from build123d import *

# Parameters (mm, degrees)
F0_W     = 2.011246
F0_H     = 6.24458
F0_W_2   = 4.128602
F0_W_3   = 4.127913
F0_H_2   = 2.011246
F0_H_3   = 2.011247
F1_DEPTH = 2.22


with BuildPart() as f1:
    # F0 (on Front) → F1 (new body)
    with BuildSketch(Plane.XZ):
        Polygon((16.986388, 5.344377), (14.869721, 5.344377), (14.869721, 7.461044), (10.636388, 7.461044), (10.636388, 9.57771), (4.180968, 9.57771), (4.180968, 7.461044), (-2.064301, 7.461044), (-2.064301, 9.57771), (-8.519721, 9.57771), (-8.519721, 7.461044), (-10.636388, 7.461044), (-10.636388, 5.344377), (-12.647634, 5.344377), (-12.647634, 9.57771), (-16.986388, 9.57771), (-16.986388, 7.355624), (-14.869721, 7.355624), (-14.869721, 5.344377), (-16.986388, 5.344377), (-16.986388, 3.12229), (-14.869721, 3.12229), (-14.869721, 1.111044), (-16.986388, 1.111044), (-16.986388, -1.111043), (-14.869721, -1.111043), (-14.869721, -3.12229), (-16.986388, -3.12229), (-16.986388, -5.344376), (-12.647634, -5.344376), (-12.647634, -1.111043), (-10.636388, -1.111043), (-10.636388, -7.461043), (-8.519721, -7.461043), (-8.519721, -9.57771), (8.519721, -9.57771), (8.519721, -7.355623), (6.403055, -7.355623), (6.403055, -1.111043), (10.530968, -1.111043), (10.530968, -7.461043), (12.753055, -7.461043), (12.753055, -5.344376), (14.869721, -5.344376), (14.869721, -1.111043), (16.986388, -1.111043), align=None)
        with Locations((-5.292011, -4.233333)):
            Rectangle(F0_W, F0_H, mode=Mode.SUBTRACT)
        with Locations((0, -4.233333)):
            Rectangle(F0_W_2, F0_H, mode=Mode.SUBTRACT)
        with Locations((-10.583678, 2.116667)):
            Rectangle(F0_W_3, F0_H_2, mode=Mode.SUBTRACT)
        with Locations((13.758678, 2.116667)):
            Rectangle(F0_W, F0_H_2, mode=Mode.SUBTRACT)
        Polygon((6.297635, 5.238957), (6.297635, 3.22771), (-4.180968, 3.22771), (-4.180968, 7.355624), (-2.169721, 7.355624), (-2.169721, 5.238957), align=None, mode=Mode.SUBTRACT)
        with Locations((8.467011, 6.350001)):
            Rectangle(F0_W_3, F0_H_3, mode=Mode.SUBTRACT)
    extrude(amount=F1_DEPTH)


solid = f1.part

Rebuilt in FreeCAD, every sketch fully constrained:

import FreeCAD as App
import Part
import Sketcher
from FreeCAD import Vector
Q = App.Units.Quantity

doc = App.newDocument("Part")
body = doc.addObject("PartDesign::Body", "Body")

# Sketch on XZ plane
sketch1 = body.newObject("Sketcher::SketchObject", "Sketch")
sketch1.AttachmentSupport = (doc.getObject("XZ_Plane"), [""])
sketch1.MapMode = "FlatFace"
sketch1.addGeometry([
    Part.LineSegment(Vector(17, 5.3, 0), Vector(14.9, 5.3, 0)),  # 0
    Part.LineSegment(Vector(14.9, 5.3, 0), Vector(14.9, 7.5, 0)),  # 1
    Part.LineSegment(Vector(14.9, 7.5, 0), Vector(10.6, 7.5, 0)),  # 2
    Part.LineSegment(Vector(10.6, 7.5, 0), Vector(10.6, 9.6, 0)),  # 3
    Part.LineSegment(Vector(10.6, 9.6, 0), Vector(4.2, 9.6, 0)),  # 4
    Part.LineSegment(Vector(4.2, 9.6, 0), Vector(4.2, 7.5, 0)),  # 5
    Part.LineSegment(Vector(4.2, 7.5, 0), Vector(-2.1, 7.5, 0)),  # 6
    Part.LineSegment(Vector(-2.1, 7.5, 0), Vector(-2.1, 9.6, 0)),  # 7
    Part.LineSegment(Vector(-2.1, 9.6, 0), Vector(-8.5, 9.6, 0)),  # 8
    Part.LineSegment(Vector(-8.5, 9.6, 0), Vector(-8.5, 7.5, 0)),  # 9
    Part.LineSegment(Vector(-8.5, 7.5, 0), Vector(-10.6, 7.5, 0)),  # 10
    Part.LineSegment(Vector(-10.6, 7.5, 0), Vector(-10.6, 5.3, 0)),  # 11
    Part.LineSegment(Vector(-10.6, 5.3, 0), Vector(-12.6, 5.3, 0)),  # 12
    Part.LineSegment(Vector(-12.6, 5.3, 0), Vector(-12.6, 9.6, 0)),  # 13
    Part.LineSegment(Vector(-12.6, 9.6, 0), Vector(-17, 9.6, 0)),  # 14
    Part.LineSegment(Vector(-17, 9.6, 0), Vector(-17, 7.4, 0)),  # 15
    Part.LineSegment(Vector(-17, 7.4, 0), Vector(-14.9, 7.4, 0)),  # 16
    Part.LineSegment(Vector(-14.9, 7.4, 0), Vector(-14.9, 5.3, 0)),  # 17
    Part.LineSegment(Vector(-14.9, 5.3, 0), Vector(-17, 5.3, 0)),  # 18
    Part.LineSegment(Vector(-17, 5.3, 0), Vector(-17, 3.1, 0)),  # 19
    Part.LineSegment(Vector(-17, 3.1, 0), Vector(-14.9, 3.1, 0)),  # 20
    Part.LineSegment(Vector(-14.9, 3.1, 0), Vector(-14.9, 1.1, 0)),  # 21
    Part.LineSegment(Vector(-14.9, 1.1, 0), Vector(-17, 1.1, 0)),  # 22
    Part.LineSegment(Vector(-17, 1.1, 0), Vector(-17, -1.1, 0)),  # 23
    Part.LineSegment(Vector(-17, -1.1, 0), Vector(-14.9, -1.1, 0)),  # 24
    Part.LineSegment(Vector(-14.9, -1.1, 0), Vector(-14.9, -3.1, 0)),  # 25
    Part.LineSegment(Vector(-14.9, -3.1, 0), Vector(-17, -3.1, 0)),  # 26
    Part.LineSegment(Vector(-17, -3.1, 0), Vector(-17, -5.3, 0)),  # 27
    Part.LineSegment(Vector(-17, -5.3, 0), Vector(-12.6, -5.3, 0)),  # 28
    Part.LineSegment(Vector(-12.6, -5.3, 0), Vector(-12.6, -1.1, 0)),  # 29
    Part.LineSegment(Vector(-12.6, -1.1, 0), Vector(-10.6, -1.1, 0)),  # 30
    Part.LineSegment(Vector(-10.6, -1.1, 0), Vector(-10.6, -7.5, 0)),  # 31
    Part.LineSegment(Vector(-10.6, -7.5, 0), Vector(-8.5, -7.5, 0)),  # 32
    Part.LineSegment(Vector(-8.5, -7.5, 0), Vector(-8.5, -9.6, 0)),  # 33
    Part.LineSegment(Vector(-8.5, -9.6, 0), Vector(8.5, -9.6, 0)),  # 34
    Part.LineSegment(Vector(8.5, -9.6, 0), Vector(8.5, -7.4, 0)),  # 35
    Part.LineSegment(Vector(8.5, -7.4, 0), Vector(6.4, -7.4, 0)),  # 36
    Part.LineSegment(Vector(6.4, -7.4, 0), Vector(6.4, -1.1, 0)),  # 37
    Part.LineSegment(Vector(6.4, -1.1, 0), Vector(10.5, -1.1, 0)),  # 38
    Part.LineSegment(Vector(10.5, -1.1, 0), Vector(10.5, -7.5, 0)),  # 39
    Part.LineSegment(Vector(10.5, -7.5, 0), Vector(12.8, -7.5, 0)),  # 40
    Part.LineSegment(Vector(12.8, -7.5, 0), Vector(12.8, -5.3, 0)),  # 41
    Part.LineSegment(Vector(12.8, -5.3, 0), Vector(14.9, -5.3, 0)),  # 42
    Part.LineSegment(Vector(14.9, -5.3, 0), Vector(14.9, -1.1, 0)),  # 43
    Part.LineSegment(Vector(14.9, -1.1, 0), Vector(17, -1.1, 0)),  # 44
    Part.LineSegment(Vector(17, -1.1, 0), Vector(17, 5.3, 0)),  # 45
    Part.LineSegment(Vector(-4.3, -7.4, 0), Vector(-6.3, -7.4, 0)),  # 46
    Part.LineSegment(Vector(-6.3, -7.4, 0), Vector(-6.3, -1.1, 0)),  # 47
    Part.LineSegment(Vector(-6.3, -1.1, 0), Vector(-4.3, -1.1, 0)),  # 48
    Part.LineSegment(Vector(-4.3, -1.1, 0), Vector(-4.3, -7.4, 0)),  # 49
    Part.LineSegment(Vector(2.1, -7.4, 0), Vector(-2.1, -7.4, 0)),  # 50
    Part.LineSegment(Vector(-2.1, -7.4, 0), Vector(-2.1, -1.1, 0)),  # 51
    Part.LineSegment(Vector(-2.1, -1.1, 0), Vector(2.1, -1.1, 0)),  # 52
    Part.LineSegment(Vector(2.1, -1.1, 0), Vector(2.1, -7.4, 0)),  # 53
    Part.LineSegment(Vector(-8.5, 1.1, 0), Vector(-12.6, 1.1, 0)),  # 54
    Part.LineSegment(Vector(-12.6, 1.1, 0), Vector(-12.6, 3.1, 0)),  # 55
    Part.LineSegment(Vector(-12.6, 3.1, 0), Vector(-8.5, 3.1, 0)),  # 56
    Part.LineSegment(Vector(-8.5, 3.1, 0), Vector(-8.5, 1.1, 0)),  # 57
    Part.LineSegment(Vector(14.8, 1.1, 0), Vector(12.8, 1.1, 0)),  # 58
    Part.LineSegment(Vector(12.8, 1.1, 0), Vector(12.8, 3.1, 0)),  # 59
    Part.LineSegment(Vector(12.8, 3.1, 0), Vector(14.8, 3.1, 0)),  # 60
    Part.LineSegment(Vector(14.8, 3.1, 0), Vector(14.8, 1.1, 0)),  # 61
    Part.LineSegment(Vector(-2.2, 5.2, 0), Vector(6.3, 5.2, 0)),  # 62
    Part.LineSegment(Vector(6.3, 5.2, 0), Vector(6.3, 3.2, 0)),  # 63
    Part.LineSegment(Vector(6.3, 3.2, 0), Vector(-4.2, 3.2, 0)),  # 64
    Part.LineSegment(Vector(-4.2, 3.2, 0), Vector(-4.2, 7.4, 0)),  # 65
    Part.LineSegment(Vector(-4.2, 7.4, 0), Vector(-2.2, 7.4, 0)),  # 66
    Part.LineSegment(Vector(-2.2, 7.4, 0), Vector(-2.2, 5.2, 0)),  # 67
    Part.LineSegment(Vector(10.5, 5.3, 0), Vector(6.4, 5.3, 0)),  # 68
    Part.LineSegment(Vector(6.4, 5.3, 0), Vector(6.4, 7.4, 0)),  # 69
    Part.LineSegment(Vector(6.4, 7.4, 0), Vector(10.5, 7.4, 0)),  # 70
    Part.LineSegment(Vector(10.5, 7.4, 0), Vector(10.5, 5.3, 0)),  # 71
], False)
sketch1.addConstraint([
    Sketcher.Constraint("Coincident", 0, 2, 1, 1),
    Sketcher.Constraint("Coincident", 1, 2, 2, 1),
    Sketcher.Constraint("Coincident", 2, 2, 3, 1),
    Sketcher.Constraint("Coincident", 3, 2, 4, 1),
    Sketcher.Constraint("Coincident", 4, 2, 5, 1),
    Sketcher.Constraint("Coincident", 5, 2, 6, 1),
    Sketcher.Constraint("Coincident", 6, 2, 7, 1),
    Sketcher.Constraint("Coincident", 7, 2, 8, 1),
    Sketcher.Constraint("Coincident", 8, 2, 9, 1),
    Sketcher.Constraint("Coincident", 9, 2, 10, 1),
    Sketcher.Constraint("Coincident", 10, 2, 11, 1),
    Sketcher.Constraint("Coincident", 11, 2, 12, 1),
    Sketcher.Constraint("Coincident", 12, 2, 13, 1),
    Sketcher.Constraint("Coincident", 13, 2, 14, 1),
    Sketcher.Constraint("Coincident", 14, 2, 15, 1),
    Sketcher.Constraint("Coincident", 15, 2, 16, 1),
    Sketcher.Constraint("Coincident", 16, 2, 17, 1),
    Sketcher.Constraint("Coincident", 17, 2, 18, 1),
    Sketcher.Constraint("Coincident", 18, 2, 19, 1),
    Sketcher.Constraint("Coincident", 19, 2, 20, 1),
    Sketcher.Constraint("Coincident", 20, 2, 21, 1),
    Sketcher.Constraint("Coincident", 21, 2, 22, 1),
    Sketcher.Constraint("Coincident", 22, 2, 23, 1),
    Sketcher.Constraint("Coincident", 23, 2, 24, 1),
    Sketcher.Constraint("Coincident", 24, 2, 25, 1),
    Sketcher.Constraint("Coincident", 25, 2, 26, 1),
    Sketcher.Constraint("Coincident", 26, 2, 27, 1),
    Sketcher.Constraint("Coincident", 27, 2, 28, 1),
    Sketcher.Constraint("Coincident", 28, 2, 29, 1),
    Sketcher.Constraint("Coincident", 29, 2, 30, 1),
    Sketcher.Constraint("Coincident", 30, 2, 31, 1),
    Sketcher.Constraint("Coincident", 31, 2, 32, 1),
    Sketcher.Constraint("Coincident", 32, 2, 33, 1),
    Sketcher.Constraint("Coincident", 33, 2, 34, 1),
    Sketcher.Constraint("Coincident", 34, 2, 35, 1),
    Sketcher.Constraint("Coincident", 35, 2, 36, 1),
    Sketcher.Constraint("Coincident", 36, 2, 37, 1),
    Sketcher.Constraint("Coincident", 37, 2, 38, 1),
    Sketcher.Constraint("Coincident", 38, 2, 39, 1),
    Sketcher.Constraint("Coincident", 39, 2, 40, 1),
    Sketcher.Constraint("Coincident", 40, 2, 41, 1),
    Sketcher.Constraint("Coincident", 41, 2, 42, 1),
    Sketcher.Constraint("Coincident", 42, 2, 43, 1),
    Sketcher.Constraint("Coincident", 43, 2, 44, 1),
    Sketcher.Constraint("Coincident", 44, 2, 45, 1),
    Sketcher.Constraint("Coincident", 45, 2, 0, 1),
    Sketcher.Constraint("Coincident", 46, 2, 47, 1),
    Sketcher.Constraint("Coincident", 47, 2, 48, 1),
    Sketcher.Constraint("Coincident", 48, 2, 49, 1),
    Sketcher.Constraint("Coincident", 49, 2, 46, 1),
    Sketcher.Constraint("Coincident", 50, 2, 51, 1),
    Sketcher.Constraint("Coincident", 51, 2, 52, 1),
    Sketcher.Constraint("Coincident", 52, 2, 53, 1),
    Sketcher.Constraint("Coincident", 53, 2, 50, 1),
    Sketcher.Constraint("Coincident", 54, 2, 55, 1),
    Sketcher.Constraint("Coincident", 55, 2, 56, 1),
    Sketcher.Constraint("Coincident", 56, 2, 57, 1),
    Sketcher.Constraint("Coincident", 57, 2, 54, 1),
    Sketcher.Constraint("Coincident", 58, 2, 59, 1),
    Sketcher.Constraint("Coincident", 59, 2, 60, 1),
    Sketcher.Constraint("Coincident", 60, 2, 61, 1),
    Sketcher.Constraint("Coincident", 61, 2, 58, 1),
    Sketcher.Constraint("Coincident", 62, 2, 63, 1),
    Sketcher.Constraint("Coincident", 63, 2, 64, 1),
    Sketcher.Constraint("Coincident", 64, 2, 65, 1),
    Sketcher.Constraint("Coincident", 65, 2, 66, 1),
    Sketcher.Constraint("Coincident", 66, 2, 67, 1),
    Sketcher.Constraint("Coincident", 67, 2, 62, 1),
    Sketcher.Constraint("Coincident", 68, 2, 69, 1),
    Sketcher.Constraint("Coincident", 69, 2, 70, 1),
    Sketcher.Constraint("Coincident", 70, 2, 71, 1),
    Sketcher.Constraint("Coincident", 71, 2, 68, 1),
    Sketcher.Constraint("Horizontal", 0),
    Sketcher.Constraint("Vertical", 1),
    Sketcher.Constraint("Horizontal", 2),
    Sketcher.Constraint("Vertical", 3),
    Sketcher.Constraint("Horizontal", 4),
    Sketcher.Constraint("Vertical", 5),
    Sketcher.Constraint("Horizontal", 6),
    Sketcher.Constraint("Vertical", 7),
    Sketcher.Constraint("Horizontal", 8),
    Sketcher.Constraint("Vertical", 9),
    Sketcher.Constraint("Horizontal", 10),
    Sketcher.Constraint("Vertical", 11),
    Sketcher.Constraint("Horizontal", 12),
    Sketcher.Constraint("Vertical", 13),
    Sketcher.Constraint("Horizontal", 14),
    Sketcher.Constraint("Vertical", 15),
    Sketcher.Constraint("Horizontal", 16),
    Sketcher.Constraint("Vertical", 17),
    Sketcher.Constraint("Horizontal", 18),
    Sketcher.Constraint("Vertical", 19),
    Sketcher.Constraint("Horizontal", 20),
    Sketcher.Constraint("Vertical", 21),
    Sketcher.Constraint("Horizontal", 22),
    Sketcher.Constraint("Vertical", 23),
    Sketcher.Constraint("Horizontal", 24),
    Sketcher.Constraint("Vertical", 25),
    Sketcher.Constraint("Horizontal", 26),
    Sketcher.Constraint("Vertical", 27),
    Sketcher.Constraint("Horizontal", 28),
    Sketcher.Constraint("Vertical", 29),
    Sketcher.Constraint("Horizontal", 30),
    Sketcher.Constraint("Vertical", 31),
    Sketcher.Constraint("Horizontal", 32),
    Sketcher.Constraint("Vertical", 33),
    Sketcher.Constraint("Horizontal", 34),
    Sketcher.Constraint("Vertical", 35),
    Sketcher.Constraint("Horizontal", 36),
    Sketcher.Constraint("Vertical", 37),
    Sketcher.Constraint("Horizontal", 38),
    Sketcher.Constraint("Vertical", 39),
    Sketcher.Constraint("Horizontal", 40),
    Sketcher.Constraint("Vertical", 41),
    Sketcher.Constraint("Horizontal", 42),
    Sketcher.Constraint("Vertical", 43),
    Sketcher.Constraint("Horizontal", 44),
    Sketcher.Constraint("Vertical", 45),
    Sketcher.Constraint("Horizontal", 46),
    Sketcher.Constraint("Vertical", 47),
    Sketcher.Constraint("Horizontal", 48),
    Sketcher.Constraint("Vertical", 49),
    Sketcher.Constraint("Horizontal", 50),
    Sketcher.Constraint("Vertical", 51),
    Sketcher.Constraint("Horizontal", 52),
    Sketcher.Constraint("Vertical", 53),
    Sketcher.Constraint("Horizontal", 54),
    Sketcher.Constraint("Vertical", 55),
    Sketcher.Constraint("Horizontal", 56),
    Sketcher.Constraint("Vertical", 57),
    Sketcher.Constraint("Horizontal", 58),
    Sketcher.Constraint("Vertical", 59),
    Sketcher.Constraint("Horizontal", 60),
    Sketcher.Constraint("Vertical", 61),
    Sketcher.Constraint("Horizontal", 62),
    Sketcher.Constraint("Vertical", 63),
    Sketcher.Constraint("Horizontal", 64),
    Sketcher.Constraint("Vertical", 65),
    Sketcher.Constraint("Horizontal", 66),
    Sketcher.Constraint("Vertical", 67),
    Sketcher.Constraint("Horizontal", 68),
    Sketcher.Constraint("Vertical", 69),
    Sketcher.Constraint("Horizontal", 70),
    Sketcher.Constraint("Vertical", 71),
    Sketcher.Constraint("Symmetric", 2, 2, 31, 2, -1, 1),
    Sketcher.Constraint("Symmetric", 8, 2, 34, 2, -1, 1),
    Sketcher.Constraint("Symmetric", 17, 2, 42, 2, -1, 1),
    Sketcher.Constraint("Symmetric", 21, 2, 43, 2, -1, 1),
    Sketcher.Constraint("Symmetric", 27, 2, 45, 2, -1, 1),
    Sketcher.Constraint("Symmetric", 2, 2, 10, 2, -2),
    Sketcher.Constraint("Symmetric", 0, 2, 17, 2, -2),
    Sketcher.Constraint("Symmetric", 24, 2, 43, 2, -2),
    Sketcher.Constraint("Symmetric", 19, 2, 26, 2, -1),
    Sketcher.Constraint("Symmetric", 12, 2, 28, 2, -1),
    Sketcher.Constraint("Symmetric", 29, 2, 54, 2, -1),
    Sketcher.Constraint("Symmetric", 36, 2, 69, 2, -1),
    Sketcher.Constraint("Horizontal", 2, 2, 5, 2),
    Sketcher.Constraint("Horizontal", 4, 2, 7, 2),
    Sketcher.Constraint("Horizontal", 8, 2, 13, 2),
    Sketcher.Constraint("Horizontal", 24, 2, 29, 2),
    Sketcher.Constraint("Horizontal", 30, 2, 37, 2),
    Sketcher.Constraint("Horizontal", 32, 2, 39, 2),
    Sketcher.Constraint("Horizontal", 36, 2, 46, 2),
    Sketcher.Constraint("Horizontal", 44, 2, 47, 2),
    Sketcher.Constraint("Horizontal", 49, 2, 50, 2),
    Sketcher.Constraint("Horizontal", 48, 2, 51, 2),
    Sketcher.Constraint("Horizontal", 20, 2, 55, 2),
    Sketcher.Constraint("Horizontal", 57, 2, 58, 2),
    Sketcher.Constraint("Horizontal", 56, 2, 59, 2),
    Sketcher.Constraint("Horizontal", 16, 2, 65, 2),
    Sketcher.Constraint("Horizontal", 45, 2, 68, 2),
    Sketcher.Constraint("Horizontal", 66, 2, 69, 2),
    Sketcher.Constraint("Vertical", 15, 2, 18, 2),
    Sketcher.Constraint("Vertical", 19, 2, 22, 2),
    Sketcher.Constraint("Vertical", 9, 2, 32, 2),
    Sketcher.Constraint("Vertical", 7, 2, 50, 2),
    Sketcher.Constraint("Vertical", 33, 2, 56, 2),
    Sketcher.Constraint("Vertical", 41, 2, 58, 2),
    Sketcher.Constraint("Vertical", 39, 2, 70, 2),
    Sketcher.Constraint("Equal", 4, 8),
    Sketcher.Constraint("Equal", 0, 10),
    Sketcher.Constraint("Equal", 32, 36),
    Sketcher.Constraint("Equal", 36, 42),
    Sketcher.Constraint("Equal", 30, 46),
    Sketcher.Constraint("Equal", 38, 54),
    Sketcher.Constraint("Equal", 48, 58),
    Sketcher.Constraint("Equal", 60, 66),
    Sketcher.Constraint("Equal", 44, 1),
    Sketcher.Constraint("Equal", 1, 3),
    Sketcher.Constraint("Equal", 2, 13),
    Sketcher.Constraint("Equal", 40, 15),
    Sketcher.Constraint("Equal", 15, 19),
    Sketcher.Constraint("Equal", 17, 21),
    Sketcher.Constraint("Equal", 19, 23),
    Sketcher.Constraint("Equal", 8, 45),
    Sketcher.Constraint("Equal", 61, 63),
    Sketcher.Constraint("Equal", 70, 65),
    Sketcher.Constraint("DistanceY", 31, 2, 31, 1, Q("0.25 in")),
    Sketcher.Constraint("DistanceX", 4, 2, 4, 1, 6.45542),
    Sketcher.Constraint("DistanceX", 6, 2, 6, 1, 6.245269),
    Sketcher.Constraint("DistanceX", -1, 1, 52, 2, 2.064301),
    Sketcher.Constraint("DistanceX", 62, 1, 62, 2, 8.467356),
    Sketcher.Constraint("DistanceX", 66, 2, -1, 1, 2.169721),
    Sketcher.Constraint("DistanceX", 46, 2, -1, 1, 6.297634),
])
pad1 = body.newObject("PartDesign::Pad", "Pad")
pad1.Profile = sketch1
pad1.Length = 2.22

doc.recompute()
